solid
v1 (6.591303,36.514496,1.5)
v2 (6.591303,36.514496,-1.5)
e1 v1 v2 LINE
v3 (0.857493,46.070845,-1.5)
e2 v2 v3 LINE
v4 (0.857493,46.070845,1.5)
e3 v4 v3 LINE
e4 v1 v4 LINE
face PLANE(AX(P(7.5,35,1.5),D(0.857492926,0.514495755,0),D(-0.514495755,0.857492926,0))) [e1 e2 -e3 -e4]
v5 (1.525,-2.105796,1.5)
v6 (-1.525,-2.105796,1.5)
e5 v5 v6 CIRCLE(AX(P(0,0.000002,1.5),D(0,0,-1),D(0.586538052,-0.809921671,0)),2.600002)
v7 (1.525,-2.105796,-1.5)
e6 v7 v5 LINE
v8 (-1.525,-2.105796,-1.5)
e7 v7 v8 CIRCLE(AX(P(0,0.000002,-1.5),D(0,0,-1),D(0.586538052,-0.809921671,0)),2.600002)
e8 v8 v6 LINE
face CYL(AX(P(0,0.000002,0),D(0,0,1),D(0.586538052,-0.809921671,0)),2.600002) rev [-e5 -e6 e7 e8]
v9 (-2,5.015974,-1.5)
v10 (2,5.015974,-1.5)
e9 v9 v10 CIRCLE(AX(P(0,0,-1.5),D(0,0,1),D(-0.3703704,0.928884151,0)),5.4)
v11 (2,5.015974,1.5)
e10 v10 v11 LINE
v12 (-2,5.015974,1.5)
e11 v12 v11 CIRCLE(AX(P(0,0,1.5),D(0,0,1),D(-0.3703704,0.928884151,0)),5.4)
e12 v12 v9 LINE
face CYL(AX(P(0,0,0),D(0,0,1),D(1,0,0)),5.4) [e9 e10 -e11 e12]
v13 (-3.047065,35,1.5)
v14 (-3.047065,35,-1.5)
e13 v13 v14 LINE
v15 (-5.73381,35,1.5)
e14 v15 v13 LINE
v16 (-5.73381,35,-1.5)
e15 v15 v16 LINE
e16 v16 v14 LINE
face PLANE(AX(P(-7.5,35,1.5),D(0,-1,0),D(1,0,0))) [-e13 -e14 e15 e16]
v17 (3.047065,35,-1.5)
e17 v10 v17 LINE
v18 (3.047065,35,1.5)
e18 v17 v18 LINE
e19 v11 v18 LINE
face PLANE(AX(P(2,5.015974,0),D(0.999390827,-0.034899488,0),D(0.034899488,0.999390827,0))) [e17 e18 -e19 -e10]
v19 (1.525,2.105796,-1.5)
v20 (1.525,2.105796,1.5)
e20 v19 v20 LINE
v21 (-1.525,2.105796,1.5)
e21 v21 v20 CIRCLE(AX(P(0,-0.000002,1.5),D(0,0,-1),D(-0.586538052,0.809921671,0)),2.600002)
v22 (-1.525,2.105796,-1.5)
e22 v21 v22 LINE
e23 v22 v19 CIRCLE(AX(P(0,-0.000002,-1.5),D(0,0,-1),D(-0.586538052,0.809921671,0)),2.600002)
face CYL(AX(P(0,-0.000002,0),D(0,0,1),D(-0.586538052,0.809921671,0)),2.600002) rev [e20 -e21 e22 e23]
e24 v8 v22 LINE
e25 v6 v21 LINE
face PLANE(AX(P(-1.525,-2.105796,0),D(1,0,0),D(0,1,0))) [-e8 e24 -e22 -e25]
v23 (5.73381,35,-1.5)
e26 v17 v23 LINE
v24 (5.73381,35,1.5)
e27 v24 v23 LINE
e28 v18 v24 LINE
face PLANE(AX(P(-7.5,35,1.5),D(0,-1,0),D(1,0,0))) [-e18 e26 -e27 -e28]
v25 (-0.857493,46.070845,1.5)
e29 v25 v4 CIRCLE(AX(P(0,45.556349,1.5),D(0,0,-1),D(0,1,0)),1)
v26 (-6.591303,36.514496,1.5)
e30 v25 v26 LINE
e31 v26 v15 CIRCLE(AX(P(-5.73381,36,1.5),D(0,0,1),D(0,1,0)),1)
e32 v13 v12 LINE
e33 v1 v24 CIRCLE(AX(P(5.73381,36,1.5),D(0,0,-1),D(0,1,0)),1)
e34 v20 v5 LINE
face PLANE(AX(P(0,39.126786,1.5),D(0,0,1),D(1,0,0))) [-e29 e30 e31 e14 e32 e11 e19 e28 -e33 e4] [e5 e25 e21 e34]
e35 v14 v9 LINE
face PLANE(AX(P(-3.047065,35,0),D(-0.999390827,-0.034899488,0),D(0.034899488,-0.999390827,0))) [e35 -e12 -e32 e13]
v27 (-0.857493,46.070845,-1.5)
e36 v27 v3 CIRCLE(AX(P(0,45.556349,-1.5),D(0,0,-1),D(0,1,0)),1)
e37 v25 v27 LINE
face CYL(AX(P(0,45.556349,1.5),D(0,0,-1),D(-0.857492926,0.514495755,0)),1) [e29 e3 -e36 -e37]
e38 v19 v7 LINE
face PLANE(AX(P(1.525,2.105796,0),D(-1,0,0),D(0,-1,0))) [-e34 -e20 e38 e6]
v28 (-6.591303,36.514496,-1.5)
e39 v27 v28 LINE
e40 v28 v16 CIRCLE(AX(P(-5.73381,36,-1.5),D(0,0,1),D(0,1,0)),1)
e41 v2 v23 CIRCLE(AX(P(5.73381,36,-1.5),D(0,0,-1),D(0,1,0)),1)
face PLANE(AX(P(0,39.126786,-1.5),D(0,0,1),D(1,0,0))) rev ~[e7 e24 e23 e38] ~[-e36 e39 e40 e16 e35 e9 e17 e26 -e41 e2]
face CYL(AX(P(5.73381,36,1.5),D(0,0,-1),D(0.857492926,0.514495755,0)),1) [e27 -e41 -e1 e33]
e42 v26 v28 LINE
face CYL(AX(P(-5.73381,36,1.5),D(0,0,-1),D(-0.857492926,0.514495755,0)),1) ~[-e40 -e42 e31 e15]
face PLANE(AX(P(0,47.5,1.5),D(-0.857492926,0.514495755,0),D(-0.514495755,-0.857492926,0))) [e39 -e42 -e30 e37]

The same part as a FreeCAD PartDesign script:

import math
import FreeCAD as App
import Part
import Sketcher

V = App.Vector
Q = App.Units.Quantity


def edges_at(feature, points):
    """Names of the edges that pass closest to the given points."""
    edges = feature.Shape.Edges
    near = lambda p: min(range(len(edges)), key=lambda i: edges[i].distToShape(Part.Vertex(*p))[0])
    return sorted({f"Edge{near(p) + 1}" for p in points})

doc = App.newDocument("Part")
params = doc.addObject("Spreadsheet::Sheet", "Params")
for row, (alias, value) in enumerate([
    ("sketch1_diameter", "10.8 mm"),
    ("sketch1_radius", "2.600002 mm"),
    ("pad1_length", "3 mm"),
    ("sketch2_width", "4 mm"),
    ("pad2_length", "3 mm"),
    ("sketch3_width", "15 mm"),
    ("pad3_length", "3 mm"),
    ("fillet_radius", "1 mm"),
], start=1):
    params.set(f"A{row}", alias)
    params.set(f"B{row}", "=" + value)
    params.setAlias(f"B{row}", alias)

body = doc.addObject("PartDesign::Body", "Body")

# Sketch on XY plane
sketch1 = body.newObject("Sketcher::SketchObject", "Sketch")
sketch1.AttachmentSupport = (doc.getObject("XY_Plane"), [""])
sketch1.MapMode = "FlatFace"
sketch1.addGeometry(Part.Circle(V(0, 0, 0), V(0, 0, 1), 5.4), False)
sketch1.addGeometry(Part.ArcOfCircle(Part.Circle(V(0, 0, 0), V(0, 0, 1), 2.6), math.radians(54), math.radians(126)), False)
sketch1.addGeometry(Part.LineSegment(V(1.5, 2.1, 0), V(1.5, -2.1, 0)), False)
sketch1.addGeometry(Part.ArcOfCircle(Part.Circle(V(0, 0, 0), V(0, 0, 1), 2.6), math.radians(-126), math.radians(-54)), False)
sketch1.addGeometry(Part.LineSegment(V(-1.5, -2.1, 0), V(-1.5, 2.1, 0)), False)
sketch1.addConstraint(Sketcher.Constraint("Coincident", 1, 1, 2, 1))
sketch1.addConstraint(Sketcher.Constraint("Coincident", 2, 2, 3, 2))
sketch1.addConstraint(Sketcher.Constraint("Coincident", 3, 1, 4, 1))
sketch1.addConstraint(Sketcher.Constraint("Coincident", 4, 2, 1, 2))
sketch1.addConstraint(Sketcher.Constraint("Vertical", 2))
sketch1.addConstraint(Sketcher.Constraint("Vertical", 4))
sketch1.addConstraint(Sketcher.Constraint("Coincident", 0, 3, -1, 1))
sketch1.addConstraint(Sketcher.Constraint("Coincident", 1, 3, -1, 1))
sketch1.addConstraint(Sketcher.Constraint("Coincident", 3, 3, -1, 1))
sketch1.addConstraint(Sketcher.Constraint("Equal", 1, 3))
sketch1.addConstraint(Sketcher.Constraint("Horizontal", 2, 2, 3, 1))
sketch1.addConstraint(Sketcher.Constraint("Diameter", 0, 10.8))
sketch1.addConstraint(Sketcher.Constraint("Radius", 1, 2.600002))
sketch1.addConstraint(Sketcher.Constraint("DistanceX", 3, 1, 2, 2, 3.05))
sketch1.setExpression("Constraints[11]", "Params.sketch1_diameter")
sketch1.setExpression("Constraints[12]", "Params.sketch1_radius")
pad1 = body.newObject("PartDesign::Pad", "Pad")
pad1.Profile = sketch1
pad1.setExpression("Length", "Params.pad1_length")
pad1.Midplane = True

# Sketch on XY plane
sketch2 = body.newObject("Sketcher::SketchObject", "Sketch001")
sketch2.AttachmentSupport = (doc.getObject("XY_Plane"), [""])
sketch2.MapMode = "FlatFace"
sketch2.addGeometry(Part.LineSegment(V(-2, 5, 0), V(2, 5, 0)), False)
sketch2.addGeometry(Part.LineSegment(V(2, 5, 0), V(3, 35, 0)), False)
sketch2.addGeometry(Part.LineSegment(V(3, 35, 0), V(-3, 35, 0)), False)
sketch2.addGeometry(Part.LineSegment(V(-3, 35, 0), V(-2, 5, 0)), False)
sketch2.addConstraint(Sketcher.Constraint("Coincident", 0, 2, 1, 1))
sketch2.addConstraint(Sketcher.Constraint("Coincident", 1, 2, 2, 1))
sketch2.addConstraint(Sketcher.Constraint("Coincident", 2, 2, 3, 1))
sketch2.addConstraint(Sketcher.Constraint("Coincident", 3, 2, 0, 1))
sketch2.addConstraint(Sketcher.Constraint("Horizontal", 0))
sketch2.addConstraint(Sketcher.Constraint("Horizontal", 2))
sketch2.addConstraint(Sketcher.Constraint("Equal", 1, 3))
sketch2.addConstraint(Sketcher.Constraint("DistanceX", 0, 1, 0, 2, 4.0))
sketch2.addConstraint(Sketcher.Constraint("Angle", 1, Q("88 deg")))
sketch2.addConstraint(Sketcher.Constraint("DistanceX", -1, 1, 0, 2, 2.0))
sketch2.addConstraint(Sketcher.Constraint("DistanceY", -1, 1, 1, 2, 35.0))
sketch2.addConstraint(Sketcher.Constraint("DistanceX", 2, 2, 2, 1, 6.09413))
sketch2.setExpression("Constraints[7]", "Params.sketch2_width")
pad2 = body.newObject("PartDesign::Pad", "Pad001")
pad2.Profile = sketch2
pad2.setExpression("Length", "Params.pad2_length")
pad2.Midplane = True

# Sketch on XY plane
sketch3 = body.newObject("Sketcher::SketchObject", "Sketch002")
sketch3.AttachmentSupport = (doc.getObject("XY_Plane"), [""])
sketch3.MapMode = "FlatFace"
sketch3.AttachmentOffset = App.Placement(V(0, 0, 1.5), App.Rotation())
sketch3.addGeometry(Part.LineSegment(V(0, 48, 0), V(-8, 35, 0)), False)
sketch3.addGeometry(Part.LineSegment(V(-8, 35, 0), V(8, 35, 0)), False)
sketch3.addGeometry(Part.LineSegment(V(8, 35, 0), V(0, 48, 0)), False)
sketch3.addConstraint(Sketcher.Constraint("Coincident", 0, 2, 1, 1))
sketch3.addConstraint(Sketcher.Constraint("Coincident", 1, 2, 2, 1))
sketch3.addConstraint(Sketcher.Constraint("Coincident", 2, 2, 0, 1))
sketch3.addConstraint(Sketcher.Constraint("Horizontal", 1))
sketch3.addConstraint(Sketcher.Constraint("PointOnObject", 2, 2, -2))
sketch3.addConstraint(Sketcher.Constraint("Equal", 0, 2))
sketch3.addConstraint(Sketcher.Constraint("DistanceX", 1, 1, 1, 2, 15.0))
sketch3.addConstraint(Sketcher.Constraint("DistanceY", -1, 1, 0, 2, 35.0))
sketch3.addConstraint(Sketcher.Constraint("DistanceY", -1, 1, 2, 2, 47.5))
sketch3.setExpression("Constraints[6]", "Params.sketch3_width")
pad3 = body.newObject("PartDesign::Pad", "Pad002")
pad3.Profile = sketch3
pad3.setExpression("Length", "Params.pad3_length")
pad3.Reversed = True
doc.recompute()

fillet = body.newObject("PartDesign::Fillet", "Fillet")
fillet.Base = (pad3, edges_at(pad3, [(-7.5, 35, 0), (0, 47.5, 0), (7.5, 35, 0)]))
fillet.setExpression("Radius", "Params.fillet_radius")

doc.recompute()
